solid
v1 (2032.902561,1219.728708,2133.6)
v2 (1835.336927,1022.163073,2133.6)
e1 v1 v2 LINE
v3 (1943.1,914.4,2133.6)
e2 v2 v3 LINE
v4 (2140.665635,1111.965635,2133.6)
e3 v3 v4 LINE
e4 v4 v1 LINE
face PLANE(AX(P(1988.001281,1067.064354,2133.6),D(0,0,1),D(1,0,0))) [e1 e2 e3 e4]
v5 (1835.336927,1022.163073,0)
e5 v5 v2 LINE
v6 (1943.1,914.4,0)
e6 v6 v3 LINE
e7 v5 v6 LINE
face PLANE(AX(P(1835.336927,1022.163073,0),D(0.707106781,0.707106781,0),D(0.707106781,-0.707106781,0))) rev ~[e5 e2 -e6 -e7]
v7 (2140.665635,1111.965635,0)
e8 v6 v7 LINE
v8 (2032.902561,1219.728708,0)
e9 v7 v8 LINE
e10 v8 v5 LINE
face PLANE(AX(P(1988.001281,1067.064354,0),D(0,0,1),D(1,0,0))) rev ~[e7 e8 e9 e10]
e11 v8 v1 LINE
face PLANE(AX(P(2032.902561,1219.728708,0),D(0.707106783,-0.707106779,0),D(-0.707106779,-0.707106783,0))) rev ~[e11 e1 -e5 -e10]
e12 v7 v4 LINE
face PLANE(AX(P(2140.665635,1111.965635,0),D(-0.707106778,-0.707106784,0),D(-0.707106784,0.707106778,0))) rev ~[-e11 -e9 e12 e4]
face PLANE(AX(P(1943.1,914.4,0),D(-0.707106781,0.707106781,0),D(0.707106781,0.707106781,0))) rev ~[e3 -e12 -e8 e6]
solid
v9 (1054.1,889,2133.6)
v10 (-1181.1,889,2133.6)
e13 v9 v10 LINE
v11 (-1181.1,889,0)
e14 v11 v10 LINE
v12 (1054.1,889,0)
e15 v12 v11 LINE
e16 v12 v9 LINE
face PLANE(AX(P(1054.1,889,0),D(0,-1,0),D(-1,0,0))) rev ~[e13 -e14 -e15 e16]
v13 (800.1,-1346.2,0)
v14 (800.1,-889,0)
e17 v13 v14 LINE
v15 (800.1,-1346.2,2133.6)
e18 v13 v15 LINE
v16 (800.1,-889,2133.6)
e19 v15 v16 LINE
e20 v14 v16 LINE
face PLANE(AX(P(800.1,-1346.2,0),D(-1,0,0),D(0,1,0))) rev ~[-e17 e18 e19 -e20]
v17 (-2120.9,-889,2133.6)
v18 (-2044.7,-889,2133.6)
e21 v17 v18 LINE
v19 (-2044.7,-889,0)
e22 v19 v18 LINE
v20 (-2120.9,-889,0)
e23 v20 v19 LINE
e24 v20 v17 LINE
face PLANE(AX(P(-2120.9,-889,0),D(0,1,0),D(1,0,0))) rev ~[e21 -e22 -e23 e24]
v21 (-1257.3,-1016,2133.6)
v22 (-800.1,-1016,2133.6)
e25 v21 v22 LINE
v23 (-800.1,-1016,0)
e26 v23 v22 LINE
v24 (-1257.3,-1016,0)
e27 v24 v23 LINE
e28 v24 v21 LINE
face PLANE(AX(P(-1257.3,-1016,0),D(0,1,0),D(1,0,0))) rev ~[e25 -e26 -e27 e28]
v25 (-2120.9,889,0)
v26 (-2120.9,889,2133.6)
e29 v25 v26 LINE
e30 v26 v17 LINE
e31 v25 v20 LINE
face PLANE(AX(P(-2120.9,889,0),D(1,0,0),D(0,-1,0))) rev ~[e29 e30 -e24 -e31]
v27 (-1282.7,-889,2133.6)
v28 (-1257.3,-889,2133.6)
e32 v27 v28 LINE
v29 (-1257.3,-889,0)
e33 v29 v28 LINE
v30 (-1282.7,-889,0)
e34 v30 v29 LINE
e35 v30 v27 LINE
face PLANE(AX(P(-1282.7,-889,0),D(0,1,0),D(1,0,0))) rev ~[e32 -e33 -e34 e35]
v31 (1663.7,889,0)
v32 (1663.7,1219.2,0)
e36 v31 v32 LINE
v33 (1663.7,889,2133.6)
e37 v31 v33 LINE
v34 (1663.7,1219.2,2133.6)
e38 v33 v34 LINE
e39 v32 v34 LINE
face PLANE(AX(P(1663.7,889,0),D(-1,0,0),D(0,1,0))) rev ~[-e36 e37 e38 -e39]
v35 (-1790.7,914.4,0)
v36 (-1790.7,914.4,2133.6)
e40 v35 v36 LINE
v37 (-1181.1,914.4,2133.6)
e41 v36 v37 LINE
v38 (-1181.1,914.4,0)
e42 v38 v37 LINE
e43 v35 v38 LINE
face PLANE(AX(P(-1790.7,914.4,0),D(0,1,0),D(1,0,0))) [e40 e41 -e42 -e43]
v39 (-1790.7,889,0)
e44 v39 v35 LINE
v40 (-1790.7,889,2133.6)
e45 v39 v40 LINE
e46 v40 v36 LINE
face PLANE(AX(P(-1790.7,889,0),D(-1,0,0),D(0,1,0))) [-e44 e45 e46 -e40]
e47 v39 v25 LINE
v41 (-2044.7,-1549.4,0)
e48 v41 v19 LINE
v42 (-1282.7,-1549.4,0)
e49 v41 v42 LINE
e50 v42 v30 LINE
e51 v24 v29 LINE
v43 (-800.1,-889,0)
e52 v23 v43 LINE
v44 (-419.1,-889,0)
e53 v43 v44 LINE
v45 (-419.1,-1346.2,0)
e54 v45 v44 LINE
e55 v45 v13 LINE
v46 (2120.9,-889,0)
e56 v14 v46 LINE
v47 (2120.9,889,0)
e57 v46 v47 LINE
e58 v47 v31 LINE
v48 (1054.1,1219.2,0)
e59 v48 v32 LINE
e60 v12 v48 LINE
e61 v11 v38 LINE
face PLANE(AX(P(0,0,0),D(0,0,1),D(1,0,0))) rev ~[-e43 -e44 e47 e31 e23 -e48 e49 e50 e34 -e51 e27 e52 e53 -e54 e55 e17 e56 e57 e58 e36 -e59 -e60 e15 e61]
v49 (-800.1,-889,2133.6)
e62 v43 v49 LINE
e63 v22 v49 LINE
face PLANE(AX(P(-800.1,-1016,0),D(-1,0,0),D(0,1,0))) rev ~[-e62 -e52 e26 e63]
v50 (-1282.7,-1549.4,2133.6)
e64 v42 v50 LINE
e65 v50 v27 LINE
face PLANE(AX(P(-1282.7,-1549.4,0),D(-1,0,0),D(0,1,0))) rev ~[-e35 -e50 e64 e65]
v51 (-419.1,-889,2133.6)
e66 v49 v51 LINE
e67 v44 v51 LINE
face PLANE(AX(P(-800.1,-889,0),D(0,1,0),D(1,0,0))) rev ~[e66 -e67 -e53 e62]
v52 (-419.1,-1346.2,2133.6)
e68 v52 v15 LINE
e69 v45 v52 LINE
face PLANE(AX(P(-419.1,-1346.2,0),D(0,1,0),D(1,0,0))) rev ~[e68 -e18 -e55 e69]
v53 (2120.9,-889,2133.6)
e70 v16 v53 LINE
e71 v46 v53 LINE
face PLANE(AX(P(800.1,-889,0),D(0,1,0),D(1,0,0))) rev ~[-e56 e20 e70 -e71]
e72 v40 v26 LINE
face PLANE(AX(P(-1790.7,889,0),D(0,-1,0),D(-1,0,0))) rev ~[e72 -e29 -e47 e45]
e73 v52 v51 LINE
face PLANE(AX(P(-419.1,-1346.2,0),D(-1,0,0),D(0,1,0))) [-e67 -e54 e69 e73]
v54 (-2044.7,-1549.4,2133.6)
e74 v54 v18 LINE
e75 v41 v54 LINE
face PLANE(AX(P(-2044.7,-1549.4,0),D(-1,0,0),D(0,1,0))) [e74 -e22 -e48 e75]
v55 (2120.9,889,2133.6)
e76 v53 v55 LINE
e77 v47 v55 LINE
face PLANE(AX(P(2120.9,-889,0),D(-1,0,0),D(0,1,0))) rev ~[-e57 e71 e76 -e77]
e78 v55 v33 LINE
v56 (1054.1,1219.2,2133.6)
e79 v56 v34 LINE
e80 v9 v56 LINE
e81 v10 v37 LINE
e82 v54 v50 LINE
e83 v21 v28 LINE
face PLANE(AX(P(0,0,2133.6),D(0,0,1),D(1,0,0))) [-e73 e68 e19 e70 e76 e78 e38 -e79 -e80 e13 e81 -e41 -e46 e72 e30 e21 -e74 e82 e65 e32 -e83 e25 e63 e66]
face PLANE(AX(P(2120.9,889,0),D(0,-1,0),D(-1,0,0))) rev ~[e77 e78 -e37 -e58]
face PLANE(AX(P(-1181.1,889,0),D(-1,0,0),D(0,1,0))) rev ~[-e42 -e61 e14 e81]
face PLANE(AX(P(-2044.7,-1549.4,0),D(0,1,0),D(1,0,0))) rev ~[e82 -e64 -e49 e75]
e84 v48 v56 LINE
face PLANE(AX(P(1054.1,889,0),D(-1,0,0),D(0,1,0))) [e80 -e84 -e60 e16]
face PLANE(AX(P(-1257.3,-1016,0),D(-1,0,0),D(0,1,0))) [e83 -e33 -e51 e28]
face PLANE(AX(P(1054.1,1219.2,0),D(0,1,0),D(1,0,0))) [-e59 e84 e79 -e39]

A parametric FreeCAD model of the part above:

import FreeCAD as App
import Part
import Sketcher

V = App.Vector
Q = App.Units.Quantity

doc = App.newDocument("Part")
body = doc.addObject("PartDesign::Body", "Body")
body.AllowCompound = True

sketch1 = doc.addObject("Sketcher::SketchObject", "Sketch")
body.addObject(sketch1)
sketch1.AttachmentSupport = (doc.XY_Plane, [""])
sketch1.MapMode = "FlatFace"
sketch1.addGeometry(Part.LineSegment(V(-2121, 889, 0), V(-2121, -889, 0)), False)
sketch1.addGeometry(Part.LineSegment(V(-2121, -889, 0), V(-2045, -889, 0)), False)
sketch1.addGeometry(Part.LineSegment(V(-2045, -889, 0), V(-2045, -1549, 0)), False)
sketch1.addGeometry(Part.LineSegment(V(-2045, -1549, 0), V(-1283, -1549, 0)), False)
sketch1.addGeometry(Part.LineSegment(V(-1283, -1549, 0), V(-1283, -889, 0)), False)
sketch1.addGeometry(Part.LineSegment(V(-1283, -889, 0), V(-1257, -889, 0)), False)
sketch1.addGeometry(Part.LineSegment(V(-1257, -889, 0), V(-1257, -1016, 0)), False)
sketch1.addGeometry(Part.LineSegment(V(-1257, -1016, 0), V(-800, -1016, 0)), False)
sketch1.addGeometry(Part.LineSegment(V(-800, -1016, 0), V(-800, -889, 0)), False)
sketch1.addGeometry(Part.LineSegment(V(-800, -889, 0), V(-419, -889, 0)), False)
sketch1.addGeometry(Part.LineSegment(V(-419, -889, 0), V(-419, -1346, 0)), False)
sketch1.addGeometry(Part.LineSegment(V(-419, -1346, 0), V(800, -1346, 0)), False)
sketch1.addGeometry(Part.LineSegment(V(800, -1346, 0), V(800, -889, 0)), False)
sketch1.addGeometry(Part.LineSegment(V(800, -889, 0), V(2121, -889, 0)), False)
sketch1.addGeometry(Part.LineSegment(V(2121, -889, 0), V(2121, 889, 0)), False)
sketch1.addGeometry(Part.LineSegment(V(2121, 889, 0), V(1664, 889, 0)), False)
sketch1.addGeometry(Part.LineSegment(V(1664, 889, 0), V(1664, 1219, 0)), False)
sketch1.addGeometry(Part.LineSegment(V(1664, 1219, 0), V(1054, 1219, 0)), False)
sketch1.addGeometry(Part.LineSegment(V(1054, 1219, 0), V(1054, 889, 0)), False)
sketch1.addGeometry(Part.LineSegment(V(1054, 889, 0), V(-1181, 889, 0)), False)
sketch1.addGeometry(Part.LineSegment(V(-1181, 889, 0), V(-1181, 914, 0)), False)
sketch1.addGeometry(Part.LineSegment(V(-1181, 914, 0), V(-1791, 914, 0)), False)
sketch1.addGeometry(Part.LineSegment(V(-1791, 914, 0), V(-1791, 889, 0)), False)
sketch1.addGeometry(Part.LineSegment(V(-1791, 889, 0), V(-2121, 889, 0)), False)
sketch1.addGeometry(Part.LineSegment(V(2033, 1220, 0), V(1835, 1022, 0)), False)
sketch1.addGeometry(Part.LineSegment(V(1835, 1022, 0), V(1943, 914, 0)), False)
sketch1.addGeometry(Part.LineSegment(V(1943, 914, 0), V(2141, 1112, 0)), False)
sketch1.addGeometry(Part.LineSegment(V(2141, 1112, 0), V(2033, 1220, 0)), False)
sketch1.addConstraint(Sketcher.Constraint("Coincident", 0, 2, 1, 1))
sketch1.addConstraint(Sketcher.Constraint("Coincident", 1, 2, 2, 1))
sketch1.addConstraint(Sketcher.Constraint("Coincident", 2, 2, 3, 1))
sketch1.addConstraint(Sketcher.Constraint("Coincident", 3, 2, 4, 1))
sketch1.addConstraint(Sketcher.Constraint("Coincident", 4, 2, 5, 1))
sketch1.addConstraint(Sketcher.Constraint("Coincident", 5, 2, 6, 1))
sketch1.addConstraint(Sketcher.Constraint("Coincident", 6, 2, 7, 1))
sketch1.addConstraint(Sketcher.Constraint("Coincident", 7, 2, 8, 1))
sketch1.addConstraint(Sketcher.Constraint("Coincident", 8, 2, 9, 1))
sketch1.addConstraint(Sketcher.Constraint("Coincident", 9, 2, 10, 1))
sketch1.addConstraint(Sketcher.Constraint("Coincident", 10, 2, 11, 1))
sketch1.addConstraint(Sketcher.Constraint("Coincident", 11, 2, 12, 1))
sketch1.addConstraint(Sketcher.Constraint("Coincident", 12, 2, 13, 1))
sketch1.addConstraint(Sketcher.Constraint("Coincident", 13, 2, 14, 1))
sketch1.addConstraint(Sketcher.Constraint("Coincident", 14, 2, 15, 1))
sketch1.addConstraint(Sketcher.Constraint("Coincident", 15, 2, 16, 1))
sketch1.addConstraint(Sketcher.Constraint("Coincident", 16, 2, 17, 1))
sketch1.addConstraint(Sketcher.Constraint("Coincident", 17, 2, 18, 1))
sketch1.addConstraint(Sketcher.Constraint("Coincident", 18, 2, 19, 1))
sketch1.addConstraint(Sketcher.Constraint("Coincident", 19, 2, 20, 1))
sketch1.addConstraint(Sketcher.Constraint("Coincident", 20, 2, 21, 1))
sketch1.addConstraint(Sketcher.Constraint("Coincident", 21, 2, 22, 1))
sketch1.addConstraint(Sketcher.Constraint("Coincident", 22, 2, 23, 1))
sketch1.addConstraint(Sketcher.Constraint("Coincident", 23, 2, 0, 1))
sketch1.addConstraint(Sketcher.Constraint("Coincident", 24, 2, 25, 1))
sketch1.addConstraint(Sketcher.Constraint("Coincident", 25, 2, 26, 1))
sketch1.addConstraint(Sketcher.Constraint("Coincident", 26, 2, 27, 1))
sketch1.addConstraint(Sketcher.Constraint("Coincident", 27, 2, 24, 1))
sketch1.addConstraint(Sketcher.Constraint("Vertical", 0))
sketch1.addConstraint(Sketcher.Constraint("Horizontal", 1))
sketch1.addConstraint(Sketcher.Constraint("Vertical", 2))
sketch1.addConstraint(Sketcher.Constraint("Horizontal", 3))
sketch1.addConstraint(Sketcher.Constraint("Vertical", 4))
sketch1.addConstraint(Sketcher.Constraint("Horizontal", 5))
sketch1.addConstraint(Sketcher.Constraint("Vertical", 6))
sketch1.addConstraint(Sketcher.Constraint("Horizontal", 7))
sketch1.addConstraint(Sketcher.Constraint("Vertical", 8))
sketch1.addConstraint(Sketcher.Constraint("Horizontal", 9))
sketch1.addConstraint(Sketcher.Constraint("Vertical", 10))
sketch1.addConstraint(Sketcher.Constraint("Horizontal", 11))
sketch1.addConstraint(Sketcher.Constraint("Vertical", 12))
sketch1.addConstraint(Sketcher.Constraint("Horizontal", 13))
sketch1.addConstraint(Sketcher.Constraint("Vertical", 14))
sketch1.addConstraint(Sketcher.Constraint("Horizontal", 15))
sketch1.addConstraint(Sketcher.Constraint("Vertical", 16))
sketch1.addConstraint(Sketcher.Constraint("Horizontal", 17))
sketch1.addConstraint(Sketcher.Constraint("Vertical", 18))
sketch1.addConstraint(Sketcher.Constraint("Horizontal", 19))
sketch1.addConstraint(Sketcher.Constraint("Vertical", 20))
sketch1.addConstraint(Sketcher.Constraint("Horizontal", 21))
sketch1.addConstraint(Sketcher.Constraint("Vertical", 22))
sketch1.addConstraint(Sketcher.Constraint("Horizontal", 23))
sketch1.addConstraint(Sketcher.Constraint("Symmetric", 0, 2, 14, 2, -1, 1))
sketch1.addConstraint(Sketcher.Constraint("Symmetric", 8, 2, 12, 2, -2))
sketch1.addConstraint(Sketcher.Constraint("Perpendicular", 24, 25))
sketch1.addConstraint(Sketcher.Constraint("Perpendicular", 25, 26))
sketch1.addConstraint(Sketcher.Constraint("Perpendicular", 26, 27))
sketch1.addConstraint(Sketcher.Constraint("Horizontal", 1, 2, 4, 2))
sketch1.addConstraint(Sketcher.Constraint("Horizontal", 5, 2, 8, 2))
sketch1.addConstraint(Sketcher.Constraint("Horizontal", 15, 2, 18, 2))
sketch1.addConstraint(Sketcher.Constraint("Horizontal", 19, 2, 22, 2))
sketch1.addConstraint(Sketcher.Constraint("Horizontal", 21, 2, 25, 2))
sketch1.addConstraint(Sketcher.Constraint("Equal", 7, 15))
sketch1.addConstraint(Sketcher.Constraint("Equal", 17, 21))
sketch1.addConstraint(Sketcher.Constraint("Equal", 15, 10))
sketch1.addConstraint(Sketcher.Constraint("Equal", 23, 16))
sketch1.addConstraint(Sketcher.Constraint("Equal", 5, 20))
sketch1.addConstraint(Sketcher.Constraint("DistanceX", 1, 1, 1, 2, Q("3 in")))
sketch1.addConstraint(Sketcher.Constraint("DistanceX", 3, 1, 3, 2, Q("30 in")))
sketch1.addConstraint(Sketcher.Constraint("DistanceX", 5, 1, 5, 2, Q("1 in")))
sketch1.addConstraint(Sketcher.Constraint("DistanceX", 7, 1, 7, 2, Q("18 in")))
sketch1.addConstraint(Sketcher.Constraint("DistanceX", 9, 1, 9, 2, Q("15 in")))
sketch1.addConstraint(Sketcher.Constraint("DistanceX", 11, 1, 11, 2, Q("48 in")))
sketch1.addConstraint(Sketcher.Constraint("DistanceX", 17, 2, 17, 1, Q("24 in")))
sketch1.addConstraint(Sketcher.Constraint("DistanceX", 19, 2, 19, 1, Q("88 in")))
sketch1.addConstraint(Sketcher.Constraint("DistanceY", 0, 2, 0, 1, Q("70 in")))
sketch1.addConstraint(Sketcher.Constraint("DistanceY", 2, 2, 2, 1, Q("26 in")))
sketch1.addConstraint(Sketcher.Constraint("DistanceY", 6, 2, 6, 1, Q("5 in")))
sketch1.addConstraint(Sketcher.Constraint("Distance", 24, Q("11 in")))
sketch1.addConstraint(Sketcher.Constraint("Distance", 25, Q("6 in")))
sketch1.addConstraint(Sketcher.Constraint("Angle", 24, Q("-135 deg")))
sketch1.addConstraint(Sketcher.Constraint("DistanceX", 25, 2, 14, 2, Q("7 in")))
pad1 = doc.addObject("PartDesign::Pad", "Pad")
body.addObject(pad1)
pad1.Profile = sketch1
pad1.Length = Q("84 in")

doc.recompute()
